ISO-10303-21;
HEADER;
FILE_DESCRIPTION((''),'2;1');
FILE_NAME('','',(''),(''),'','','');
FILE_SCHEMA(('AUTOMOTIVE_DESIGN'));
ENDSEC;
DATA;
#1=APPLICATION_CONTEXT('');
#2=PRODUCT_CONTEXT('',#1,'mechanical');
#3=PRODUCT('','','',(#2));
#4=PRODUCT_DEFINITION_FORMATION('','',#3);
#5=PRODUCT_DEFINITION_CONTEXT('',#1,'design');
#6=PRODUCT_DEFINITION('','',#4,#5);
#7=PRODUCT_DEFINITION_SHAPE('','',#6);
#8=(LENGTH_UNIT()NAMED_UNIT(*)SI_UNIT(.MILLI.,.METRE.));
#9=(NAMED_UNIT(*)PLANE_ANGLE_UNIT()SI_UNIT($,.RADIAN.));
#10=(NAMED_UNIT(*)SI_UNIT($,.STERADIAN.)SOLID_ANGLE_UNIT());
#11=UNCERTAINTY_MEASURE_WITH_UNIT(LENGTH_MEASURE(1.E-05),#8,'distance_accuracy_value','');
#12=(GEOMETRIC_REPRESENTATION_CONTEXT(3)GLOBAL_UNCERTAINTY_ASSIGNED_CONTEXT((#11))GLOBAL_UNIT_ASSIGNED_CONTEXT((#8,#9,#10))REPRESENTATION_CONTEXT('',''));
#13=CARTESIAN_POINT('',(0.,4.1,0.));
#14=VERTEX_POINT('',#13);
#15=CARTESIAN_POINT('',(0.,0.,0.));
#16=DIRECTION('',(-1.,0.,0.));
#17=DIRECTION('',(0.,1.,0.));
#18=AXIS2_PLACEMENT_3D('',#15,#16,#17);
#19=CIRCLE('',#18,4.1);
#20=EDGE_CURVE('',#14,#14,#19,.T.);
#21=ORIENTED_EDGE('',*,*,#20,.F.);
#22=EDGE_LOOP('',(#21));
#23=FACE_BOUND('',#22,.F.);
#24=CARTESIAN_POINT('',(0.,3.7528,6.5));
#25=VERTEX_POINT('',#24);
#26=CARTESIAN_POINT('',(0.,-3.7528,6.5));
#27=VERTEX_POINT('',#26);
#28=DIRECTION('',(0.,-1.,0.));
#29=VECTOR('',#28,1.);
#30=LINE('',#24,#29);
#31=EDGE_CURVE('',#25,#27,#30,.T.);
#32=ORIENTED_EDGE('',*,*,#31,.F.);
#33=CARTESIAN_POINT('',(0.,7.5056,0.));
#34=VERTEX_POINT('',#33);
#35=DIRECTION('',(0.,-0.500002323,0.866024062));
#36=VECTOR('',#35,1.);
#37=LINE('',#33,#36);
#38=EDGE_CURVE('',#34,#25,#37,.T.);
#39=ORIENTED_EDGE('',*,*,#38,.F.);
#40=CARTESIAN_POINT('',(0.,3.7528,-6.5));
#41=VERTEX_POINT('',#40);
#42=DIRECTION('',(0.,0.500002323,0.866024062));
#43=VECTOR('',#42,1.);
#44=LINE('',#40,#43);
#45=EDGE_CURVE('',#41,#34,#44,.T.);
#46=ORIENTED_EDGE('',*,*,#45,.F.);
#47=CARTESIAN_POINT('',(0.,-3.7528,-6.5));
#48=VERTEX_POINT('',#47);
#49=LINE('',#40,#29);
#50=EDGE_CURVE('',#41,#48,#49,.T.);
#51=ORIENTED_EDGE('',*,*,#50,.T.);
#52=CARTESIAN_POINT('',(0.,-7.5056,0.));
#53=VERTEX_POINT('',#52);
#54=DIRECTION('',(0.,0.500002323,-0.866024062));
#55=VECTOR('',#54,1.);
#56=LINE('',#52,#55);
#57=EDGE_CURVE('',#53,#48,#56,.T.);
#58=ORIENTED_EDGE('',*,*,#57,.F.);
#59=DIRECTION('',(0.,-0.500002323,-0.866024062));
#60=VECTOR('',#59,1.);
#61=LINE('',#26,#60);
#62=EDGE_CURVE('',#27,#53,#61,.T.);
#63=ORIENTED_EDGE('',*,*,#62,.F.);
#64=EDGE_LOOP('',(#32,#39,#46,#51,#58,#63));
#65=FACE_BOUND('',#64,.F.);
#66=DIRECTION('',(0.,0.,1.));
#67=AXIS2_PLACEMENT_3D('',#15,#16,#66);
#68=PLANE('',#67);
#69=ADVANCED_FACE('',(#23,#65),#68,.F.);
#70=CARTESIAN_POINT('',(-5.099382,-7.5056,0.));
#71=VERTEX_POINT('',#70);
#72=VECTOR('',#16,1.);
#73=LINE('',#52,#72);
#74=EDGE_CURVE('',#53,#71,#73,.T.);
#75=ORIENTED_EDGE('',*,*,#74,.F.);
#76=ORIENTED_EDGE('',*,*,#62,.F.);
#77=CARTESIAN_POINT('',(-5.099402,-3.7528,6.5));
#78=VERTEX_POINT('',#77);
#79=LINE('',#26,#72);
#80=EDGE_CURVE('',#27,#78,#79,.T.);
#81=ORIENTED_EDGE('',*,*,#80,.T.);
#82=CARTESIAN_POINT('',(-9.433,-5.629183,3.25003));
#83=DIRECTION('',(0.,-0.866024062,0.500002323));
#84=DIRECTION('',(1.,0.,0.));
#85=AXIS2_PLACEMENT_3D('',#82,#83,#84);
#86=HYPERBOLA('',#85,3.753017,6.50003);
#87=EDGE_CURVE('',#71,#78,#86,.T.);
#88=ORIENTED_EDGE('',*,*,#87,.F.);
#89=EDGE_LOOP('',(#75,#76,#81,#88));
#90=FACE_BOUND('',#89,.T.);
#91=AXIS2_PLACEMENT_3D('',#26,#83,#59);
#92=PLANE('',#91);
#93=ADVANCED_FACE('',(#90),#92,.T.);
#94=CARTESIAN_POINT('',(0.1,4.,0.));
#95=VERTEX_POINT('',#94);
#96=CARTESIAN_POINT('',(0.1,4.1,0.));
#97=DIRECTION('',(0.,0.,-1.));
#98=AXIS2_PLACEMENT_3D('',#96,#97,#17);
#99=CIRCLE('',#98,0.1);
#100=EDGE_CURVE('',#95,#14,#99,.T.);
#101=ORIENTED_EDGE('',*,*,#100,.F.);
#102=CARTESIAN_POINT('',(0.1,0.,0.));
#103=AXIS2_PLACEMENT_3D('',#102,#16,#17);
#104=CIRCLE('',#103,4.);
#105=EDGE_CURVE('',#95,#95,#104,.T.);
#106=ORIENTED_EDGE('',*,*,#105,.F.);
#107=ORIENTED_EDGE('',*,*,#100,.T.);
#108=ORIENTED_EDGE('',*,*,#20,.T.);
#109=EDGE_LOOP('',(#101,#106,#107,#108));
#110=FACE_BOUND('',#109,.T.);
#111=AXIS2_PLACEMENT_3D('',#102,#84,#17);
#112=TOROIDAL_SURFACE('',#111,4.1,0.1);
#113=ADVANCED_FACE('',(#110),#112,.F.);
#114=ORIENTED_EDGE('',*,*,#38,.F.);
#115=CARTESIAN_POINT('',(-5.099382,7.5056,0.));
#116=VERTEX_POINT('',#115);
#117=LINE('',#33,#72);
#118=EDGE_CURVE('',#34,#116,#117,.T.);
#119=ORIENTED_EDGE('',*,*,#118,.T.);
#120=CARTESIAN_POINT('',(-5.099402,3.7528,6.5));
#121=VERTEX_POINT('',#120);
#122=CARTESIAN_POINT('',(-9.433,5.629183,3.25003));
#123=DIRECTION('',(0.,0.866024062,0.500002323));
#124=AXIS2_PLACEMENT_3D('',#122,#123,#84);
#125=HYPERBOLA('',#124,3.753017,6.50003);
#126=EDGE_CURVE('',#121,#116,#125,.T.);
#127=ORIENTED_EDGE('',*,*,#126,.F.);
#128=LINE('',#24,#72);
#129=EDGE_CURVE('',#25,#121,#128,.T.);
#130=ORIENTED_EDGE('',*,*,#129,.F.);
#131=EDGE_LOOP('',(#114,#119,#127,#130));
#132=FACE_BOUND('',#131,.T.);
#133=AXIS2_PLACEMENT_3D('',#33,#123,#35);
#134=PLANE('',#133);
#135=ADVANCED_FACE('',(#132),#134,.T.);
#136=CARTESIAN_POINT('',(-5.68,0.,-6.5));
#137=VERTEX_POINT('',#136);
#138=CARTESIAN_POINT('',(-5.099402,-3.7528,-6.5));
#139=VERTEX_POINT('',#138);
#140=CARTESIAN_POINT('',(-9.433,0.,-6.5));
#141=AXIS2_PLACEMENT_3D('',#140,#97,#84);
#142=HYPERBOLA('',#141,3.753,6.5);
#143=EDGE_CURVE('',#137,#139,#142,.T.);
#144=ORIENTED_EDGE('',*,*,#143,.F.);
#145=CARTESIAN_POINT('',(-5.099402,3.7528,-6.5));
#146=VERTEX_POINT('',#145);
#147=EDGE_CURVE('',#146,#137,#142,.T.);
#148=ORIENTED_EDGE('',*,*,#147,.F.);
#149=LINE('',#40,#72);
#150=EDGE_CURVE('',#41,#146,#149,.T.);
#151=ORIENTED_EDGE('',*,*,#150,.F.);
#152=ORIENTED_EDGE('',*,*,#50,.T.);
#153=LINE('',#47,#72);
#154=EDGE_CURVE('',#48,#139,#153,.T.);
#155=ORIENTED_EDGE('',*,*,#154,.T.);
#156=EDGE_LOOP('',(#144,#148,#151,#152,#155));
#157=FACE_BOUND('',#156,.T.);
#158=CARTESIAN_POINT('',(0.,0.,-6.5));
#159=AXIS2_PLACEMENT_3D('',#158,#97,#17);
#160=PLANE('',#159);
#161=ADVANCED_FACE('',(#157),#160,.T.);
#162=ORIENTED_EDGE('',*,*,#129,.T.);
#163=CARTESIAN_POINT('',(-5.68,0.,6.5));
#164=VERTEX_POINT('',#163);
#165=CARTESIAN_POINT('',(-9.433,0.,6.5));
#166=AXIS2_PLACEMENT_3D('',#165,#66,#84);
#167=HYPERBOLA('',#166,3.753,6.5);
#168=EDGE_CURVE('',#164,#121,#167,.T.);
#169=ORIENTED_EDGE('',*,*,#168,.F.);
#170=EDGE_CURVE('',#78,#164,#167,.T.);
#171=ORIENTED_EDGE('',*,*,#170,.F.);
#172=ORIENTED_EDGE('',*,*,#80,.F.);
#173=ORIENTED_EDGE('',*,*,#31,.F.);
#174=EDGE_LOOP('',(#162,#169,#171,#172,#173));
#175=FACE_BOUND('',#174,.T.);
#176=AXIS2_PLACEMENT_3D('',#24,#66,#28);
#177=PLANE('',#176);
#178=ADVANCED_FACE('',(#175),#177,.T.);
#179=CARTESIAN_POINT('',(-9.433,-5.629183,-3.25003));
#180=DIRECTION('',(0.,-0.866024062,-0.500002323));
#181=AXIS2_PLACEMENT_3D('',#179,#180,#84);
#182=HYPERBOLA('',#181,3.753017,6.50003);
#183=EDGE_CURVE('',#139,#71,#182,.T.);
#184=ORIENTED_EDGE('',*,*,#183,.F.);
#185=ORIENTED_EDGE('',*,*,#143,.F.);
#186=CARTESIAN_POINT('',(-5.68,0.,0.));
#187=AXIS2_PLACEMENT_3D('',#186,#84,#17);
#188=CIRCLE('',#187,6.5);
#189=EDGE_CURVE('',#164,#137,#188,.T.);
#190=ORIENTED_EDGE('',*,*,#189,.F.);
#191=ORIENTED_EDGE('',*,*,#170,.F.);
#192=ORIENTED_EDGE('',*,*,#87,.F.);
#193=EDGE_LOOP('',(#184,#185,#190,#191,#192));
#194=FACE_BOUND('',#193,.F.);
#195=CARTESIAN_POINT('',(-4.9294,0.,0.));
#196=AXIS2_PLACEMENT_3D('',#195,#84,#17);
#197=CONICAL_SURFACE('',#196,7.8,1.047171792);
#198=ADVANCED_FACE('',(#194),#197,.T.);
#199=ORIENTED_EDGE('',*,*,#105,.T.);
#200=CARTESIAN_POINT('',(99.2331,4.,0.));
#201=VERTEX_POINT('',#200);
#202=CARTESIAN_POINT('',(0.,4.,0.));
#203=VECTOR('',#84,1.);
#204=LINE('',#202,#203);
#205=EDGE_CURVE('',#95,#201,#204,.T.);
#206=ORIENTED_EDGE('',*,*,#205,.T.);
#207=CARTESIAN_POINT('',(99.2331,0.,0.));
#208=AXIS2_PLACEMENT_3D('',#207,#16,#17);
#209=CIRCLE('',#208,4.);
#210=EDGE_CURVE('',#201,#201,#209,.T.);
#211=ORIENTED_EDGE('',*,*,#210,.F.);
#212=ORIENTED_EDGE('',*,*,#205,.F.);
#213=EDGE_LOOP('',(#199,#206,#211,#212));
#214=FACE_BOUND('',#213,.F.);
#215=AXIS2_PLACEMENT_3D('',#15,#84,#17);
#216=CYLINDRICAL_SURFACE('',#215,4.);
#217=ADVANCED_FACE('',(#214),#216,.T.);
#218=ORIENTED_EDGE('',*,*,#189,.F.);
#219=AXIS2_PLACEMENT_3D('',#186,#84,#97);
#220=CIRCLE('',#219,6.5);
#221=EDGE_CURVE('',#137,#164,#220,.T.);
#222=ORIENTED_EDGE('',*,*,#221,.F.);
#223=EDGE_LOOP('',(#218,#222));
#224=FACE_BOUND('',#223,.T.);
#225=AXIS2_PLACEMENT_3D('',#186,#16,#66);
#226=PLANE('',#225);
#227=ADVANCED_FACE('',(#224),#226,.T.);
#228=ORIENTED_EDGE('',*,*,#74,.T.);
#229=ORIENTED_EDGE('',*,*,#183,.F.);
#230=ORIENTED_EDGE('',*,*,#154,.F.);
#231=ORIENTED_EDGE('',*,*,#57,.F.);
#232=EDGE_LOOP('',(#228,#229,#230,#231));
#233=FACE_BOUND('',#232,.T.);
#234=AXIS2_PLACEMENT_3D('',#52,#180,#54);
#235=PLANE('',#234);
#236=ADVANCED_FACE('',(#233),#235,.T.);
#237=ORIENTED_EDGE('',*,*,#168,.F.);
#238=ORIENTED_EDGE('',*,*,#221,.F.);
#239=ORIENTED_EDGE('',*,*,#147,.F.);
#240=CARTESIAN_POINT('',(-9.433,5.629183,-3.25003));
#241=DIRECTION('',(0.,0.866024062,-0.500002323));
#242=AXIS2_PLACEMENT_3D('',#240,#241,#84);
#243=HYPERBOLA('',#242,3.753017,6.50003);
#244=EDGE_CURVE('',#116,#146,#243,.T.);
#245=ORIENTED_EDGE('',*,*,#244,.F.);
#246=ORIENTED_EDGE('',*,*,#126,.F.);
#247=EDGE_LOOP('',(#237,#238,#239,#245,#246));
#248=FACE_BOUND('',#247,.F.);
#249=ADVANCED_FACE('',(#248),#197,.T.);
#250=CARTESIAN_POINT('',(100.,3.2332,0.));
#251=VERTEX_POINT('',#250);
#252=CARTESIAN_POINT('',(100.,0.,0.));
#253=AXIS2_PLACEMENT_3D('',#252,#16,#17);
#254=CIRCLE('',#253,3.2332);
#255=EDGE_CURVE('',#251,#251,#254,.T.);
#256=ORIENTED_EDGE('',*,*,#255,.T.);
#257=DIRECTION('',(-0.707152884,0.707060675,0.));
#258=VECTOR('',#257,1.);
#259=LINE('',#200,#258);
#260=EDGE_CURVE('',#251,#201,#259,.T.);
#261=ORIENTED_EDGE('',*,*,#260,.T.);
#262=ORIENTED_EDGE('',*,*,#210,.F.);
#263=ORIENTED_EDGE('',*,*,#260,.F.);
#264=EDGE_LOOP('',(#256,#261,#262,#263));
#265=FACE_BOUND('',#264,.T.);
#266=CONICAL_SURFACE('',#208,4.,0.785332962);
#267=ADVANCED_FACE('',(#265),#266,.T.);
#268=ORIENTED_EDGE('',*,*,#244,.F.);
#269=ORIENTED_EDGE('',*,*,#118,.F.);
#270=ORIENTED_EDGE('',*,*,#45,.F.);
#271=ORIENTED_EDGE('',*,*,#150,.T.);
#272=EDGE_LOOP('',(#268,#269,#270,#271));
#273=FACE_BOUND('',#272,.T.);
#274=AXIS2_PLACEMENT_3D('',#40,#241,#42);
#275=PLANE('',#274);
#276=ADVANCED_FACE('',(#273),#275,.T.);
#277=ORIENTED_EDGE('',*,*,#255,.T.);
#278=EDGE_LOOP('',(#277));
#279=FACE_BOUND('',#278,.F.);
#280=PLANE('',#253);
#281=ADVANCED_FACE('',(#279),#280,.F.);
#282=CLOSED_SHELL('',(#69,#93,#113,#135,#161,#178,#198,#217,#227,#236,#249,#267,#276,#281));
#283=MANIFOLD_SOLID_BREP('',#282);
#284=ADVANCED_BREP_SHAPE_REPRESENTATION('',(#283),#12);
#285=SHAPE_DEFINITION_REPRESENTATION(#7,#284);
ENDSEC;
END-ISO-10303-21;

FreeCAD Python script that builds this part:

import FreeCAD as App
import Part
import Sketcher

V = App.Vector
Q = App.Units.Quantity


def edges_at(feature, points):
    """Names of the edges that pass closest to the given points."""
    edges = feature.Shape.Edges
    near = lambda p: min(range(len(edges)), key=lambda i: edges[i].distToShape(Part.Vertex(*p))[0])
    return sorted({f"Edge{near(p) + 1}" for p in points})


def add_polygon(sketch, points):
    """Adds a closed chain of lines whose ends are joined by coincident constraints."""
    first, n = sketch.GeometryCount, len(points)
    for a, b in zip(points, points[1:] + points[:1]):
        sketch.addGeometry(Part.LineSegment(App.Vector(*a, 0), App.Vector(*b, 0)), False)
    for i in range(n):
        sketch.addConstraint(Sketcher.Constraint("Coincident", first + i, 2, first + (i + 1) % n, 1))

doc = App.newDocument("Part")
body = doc.addObject("PartDesign::Body", "Body")

# Sketch on XY plane
sketch1 = body.newObject("Sketcher::SketchObject", "Sketch")
sketch1.AttachmentSupport = (doc.getObject("XY_Plane"), [""])
sketch1.MapMode = "FlatFace"
add_polygon(sketch1, [(100, 4), (0, 4), (0, 0), (100, 0)])  # lines 0-3
sketch1.addConstraint([
    Sketcher.Constraint("Horizontal", 0),
    Sketcher.Constraint("Vertical", 1),
    Sketcher.Constraint("Horizontal", 2),
    Sketcher.Constraint("Vertical", 3),
    Sketcher.Constraint("Coincident", 1, 2, -1, 1),
    Sketcher.Constraint("DistanceX", 0, 2, 0, 1, Q("100 mm")),
    Sketcher.Constraint("DistanceY", 1, 2, 1, 1, Q("4 mm")),
])
revolution = body.newObject("PartDesign::Revolution", "Revolution")
revolution.Profile = sketch1
revolution.ReferenceAxis = (sketch1, ["H_Axis"])
revolution.Angle = 360

# Sketch on YZ plane
sketch2 = body.newObject("Sketcher::SketchObject", "Sketch001")
sketch2.AttachmentSupport = (doc.getObject("YZ_Plane"), [""])
sketch2.MapMode = "FlatFace"
add_polygon(sketch2, [(4, -6), (-4, -6), (-8, 0), (-4, 6), (4, 6), (8, 0)])  # lines 0-5
sketch2.addConstraint([
    Sketcher.Constraint("Horizontal", 0),
    Sketcher.Constraint("Horizontal", 3),
    Sketcher.Constraint("Symmetric", 0, 2, 3, 2, -1, 1),
    Sketcher.Constraint("Symmetric", 1, 2, 4, 2, -1, 1),
    Sketcher.Constraint("PointOnObject", 1, 2, -1),
    Sketcher.Constraint("Parallel", 2, 5),
    Sketcher.Constraint("Vertical", 0, 2, 2, 2),
    Sketcher.Constraint("DistanceY", 0, 2, 2, 2, Q("13 mm")),
    Sketcher.Constraint("Angle", 1, Q("120.0002 deg")),
    Sketcher.Constraint("DistanceX", 0, 2, 0, 1, Q("7.5056 mm")),
])
pad1 = body.newObject("PartDesign::Pad", "Pad")
pad1.Profile = sketch2
pad1.Length = 5.68
pad1.Reversed = True

# Sketch on XY plane
sketch3 = body.newObject("Sketcher::SketchObject", "Sketch002")
sketch3.AttachmentSupport = (doc.getObject("XY_Plane"), [""])
sketch3.MapMode = "FlatFace"
add_polygon(sketch3, [(-5.7, 6.5), (-4.9, 7.8), (-5.7, 7.8)])  # lines 0-2
sketch3.addConstraint([
    Sketcher.Constraint("Horizontal", 1),
    Sketcher.Constraint("Vertical", 2),
    Sketcher.Constraint("DistanceX", 1, 2, -1, 1, Q("5.68 mm")),
    Sketcher.Constraint("DistanceY", 2, 2, 2, 1, Q("1.3 mm")),
    Sketcher.Constraint("DistanceY", -1, 1, 0, 2, Q("7.8 mm")),
    Sketcher.Constraint("DistanceX", 1, 2, 1, 1, Q("0.7506 mm")),
])
groove = body.newObject("PartDesign::Groove", "Groove")
groove.Profile = sketch3
groove.ReferenceAxis = (sketch3, ["H_Axis"])
groove.Angle = 360
doc.recompute()

chamfer = body.newObject("PartDesign::Chamfer", "Chamfer")
chamfer.Base = (groove, edges_at(groove, [(100, -4, 0)]))
chamfer.ChamferType = "Two distances"
chamfer.Size = 0.7668
chamfer.Size2 = 0.7669
doc.recompute()

fillet = body.newObject("PartDesign::Fillet", "Fillet")
fillet.Base = (chamfer, edges_at(chamfer, [(0, -4, 0)]))
fillet.Radius = 0.1

doc.recompute()
